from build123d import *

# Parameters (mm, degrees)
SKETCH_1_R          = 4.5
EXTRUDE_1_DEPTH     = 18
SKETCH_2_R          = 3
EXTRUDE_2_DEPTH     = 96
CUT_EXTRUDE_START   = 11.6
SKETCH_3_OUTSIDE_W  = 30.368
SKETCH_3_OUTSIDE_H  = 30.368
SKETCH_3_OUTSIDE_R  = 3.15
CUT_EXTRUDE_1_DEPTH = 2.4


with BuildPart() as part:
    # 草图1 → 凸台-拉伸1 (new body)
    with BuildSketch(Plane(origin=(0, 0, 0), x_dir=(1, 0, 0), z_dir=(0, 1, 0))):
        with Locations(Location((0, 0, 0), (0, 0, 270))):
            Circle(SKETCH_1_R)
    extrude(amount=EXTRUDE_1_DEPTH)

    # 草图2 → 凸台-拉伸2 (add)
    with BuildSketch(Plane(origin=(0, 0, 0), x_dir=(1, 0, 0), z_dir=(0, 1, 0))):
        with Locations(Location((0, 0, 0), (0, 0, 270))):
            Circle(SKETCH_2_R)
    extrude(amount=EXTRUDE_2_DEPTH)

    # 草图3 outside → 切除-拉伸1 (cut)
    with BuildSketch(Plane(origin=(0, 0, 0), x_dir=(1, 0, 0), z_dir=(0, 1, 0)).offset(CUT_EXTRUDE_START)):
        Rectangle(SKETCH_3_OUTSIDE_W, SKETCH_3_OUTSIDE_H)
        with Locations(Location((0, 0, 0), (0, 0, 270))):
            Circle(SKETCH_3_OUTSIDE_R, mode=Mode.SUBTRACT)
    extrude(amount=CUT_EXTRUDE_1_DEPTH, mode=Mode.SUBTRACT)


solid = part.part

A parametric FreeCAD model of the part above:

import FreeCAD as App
import Part
import Sketcher
Q = App.Units.Quantity


def add_polygon(sketch, points):
    """Adds a closed chain of lines whose ends are joined by coincident constraints."""
    first, n = sketch.GeometryCount, len(points)
    for a, b in zip(points, points[1:] + points[:1]):
        sketch.addGeometry(Part.LineSegment(App.Vector(*a, 0), App.Vector(*b, 0)), False)
    for i in range(n):
        sketch.addConstraint(Sketcher.Constraint("Coincident", first + i, 2, first + (i + 1) % n, 1))

doc = App.newDocument("Part")
body = doc.addObject("PartDesign::Body", "Body")

# Sketch on XZ plane
sketch1 = body.newObject("Sketcher::SketchObject", "Sketch")
sketch1.AttachmentSupport = (doc.getObject("XZ_Plane"), [""])
sketch1.MapMode = "FlatFace"
sketch1.addGeometry(Part.Circle(App.Vector(0, 0, 0), App.Vector(0, 0, 1), 4.5), False)
sketch1.addConstraint(Sketcher.Constraint("Coincident", 0, 3, -1, 1))
sketch1.addConstraint(Sketcher.Constraint("Diameter", 0, Q("9 mm")))
pad1 = body.newObject("PartDesign::Pad", "Pad")
pad1.Profile = sketch1
pad1.Length = 18
pad1.Reversed = True

# Sketch on XZ plane
sketch2 = body.newObject("Sketcher::SketchObject", "Sketch001")
sketch2.AttachmentSupport = (doc.getObject("XZ_Plane"), [""])
sketch2.MapMode = "FlatFace"
sketch2.addGeometry(Part.Circle(App.Vector(0, 0, 0), App.Vector(0, 0, 1), 3), False)
sketch2.addConstraint(Sketcher.Constraint("Coincident", 0, 3, -1, 1))
sketch2.addConstraint(Sketcher.Constraint("Diameter", 0, Q("6 mm")))
pad2 = body.newObject("PartDesign::Pad", "Pad001")
pad2.Profile = sketch2
pad2.Length = 96
pad2.Reversed = True

# Sketch on XZ plane
sketch3 = body.newObject("Sketcher::SketchObject", "Sketch002")
sketch3.AttachmentSupport = (doc.getObject("XZ_Plane"), [""])
sketch3.MapMode = "FlatFace"
sketch3.AttachmentOffset = App.Placement(App.Vector(0, 0, -11.6), App.Rotation())
add_polygon(sketch3, [(-15.2, -15.2), (-15.2, 15.2), (15.2, 15.2), (15.2, -15.2)])  # lines 0-3
sketch3.addGeometry(Part.Circle(App.Vector(0, 0, 0), App.Vector(0, 0, 1), 3.1), False)  # 4
sketch3.addConstraint(Sketcher.Constraint("Vertical", 0))
sketch3.addConstraint(Sketcher.Constraint("Horizontal", 1))
sketch3.addConstraint(Sketcher.Constraint("Vertical", 2))
sketch3.addConstraint(Sketcher.Constraint("Horizontal", 3))
sketch3.addConstraint(Sketcher.Constraint("Coincident", 4, 3, -1, 1))
sketch3.addConstraint(Sketcher.Constraint("Symmetric", 0, 2, 2, 2, -1, 1))
sketch3.addConstraint(Sketcher.Constraint("Equal", 3, 0))
sketch3.addConstraint(Sketcher.Constraint("Diameter", 4, Q("6.3 mm")))
sketch3.addConstraint(Sketcher.Constraint("DistanceX", 1, 1, 1, 2, Q("30.368 mm")))
pocket1 = body.newObject("PartDesign::Pocket", "Pocket")
pocket1.Profile = sketch3
pocket1.Length = 2.4

doc.recompute()
